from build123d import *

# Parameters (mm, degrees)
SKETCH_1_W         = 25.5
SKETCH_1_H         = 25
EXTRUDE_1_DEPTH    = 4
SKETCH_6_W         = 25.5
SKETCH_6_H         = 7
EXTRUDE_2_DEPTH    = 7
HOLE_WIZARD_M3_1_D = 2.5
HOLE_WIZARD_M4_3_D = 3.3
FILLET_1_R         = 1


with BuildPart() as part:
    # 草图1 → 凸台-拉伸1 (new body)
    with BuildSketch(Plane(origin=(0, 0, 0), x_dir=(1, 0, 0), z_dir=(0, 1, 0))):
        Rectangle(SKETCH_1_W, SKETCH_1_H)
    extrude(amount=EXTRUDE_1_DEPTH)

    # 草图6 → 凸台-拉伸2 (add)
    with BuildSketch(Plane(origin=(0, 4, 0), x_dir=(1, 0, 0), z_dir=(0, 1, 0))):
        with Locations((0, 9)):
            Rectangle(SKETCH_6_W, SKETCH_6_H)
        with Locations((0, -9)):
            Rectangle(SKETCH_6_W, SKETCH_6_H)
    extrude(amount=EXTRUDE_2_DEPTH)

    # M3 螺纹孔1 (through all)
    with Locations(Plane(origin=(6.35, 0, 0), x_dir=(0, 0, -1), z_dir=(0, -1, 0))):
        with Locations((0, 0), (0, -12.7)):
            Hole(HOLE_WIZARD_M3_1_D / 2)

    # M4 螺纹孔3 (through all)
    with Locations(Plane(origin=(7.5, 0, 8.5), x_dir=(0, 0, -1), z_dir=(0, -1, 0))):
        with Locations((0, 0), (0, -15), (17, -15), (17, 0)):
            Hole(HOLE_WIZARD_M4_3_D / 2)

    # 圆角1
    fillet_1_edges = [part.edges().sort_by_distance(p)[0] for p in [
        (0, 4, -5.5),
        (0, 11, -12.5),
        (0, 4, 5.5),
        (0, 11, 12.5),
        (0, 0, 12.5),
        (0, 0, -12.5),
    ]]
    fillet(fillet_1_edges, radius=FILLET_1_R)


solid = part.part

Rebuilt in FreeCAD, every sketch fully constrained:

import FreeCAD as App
import Part
import Sketcher
Q = App.Units.Quantity


def edges_at(feature, points):
    """Names of the edges that pass closest to the given points."""
    edges = feature.Shape.Edges
    near = lambda p: min(range(len(edges)), key=lambda i: edges[i].distToShape(Part.Vertex(*p))[0])
    return sorted({f"Edge{near(p) + 1}" for p in points})

doc = App.newDocument("Part")
body = doc.addObject("PartDesign::Body", "Body")

# Sketch on XZ plane
sketch1 = doc.addObject("Sketcher::SketchObject", "Sketch")
body.addObject(sketch1)
sketch1.AttachmentSupport = (doc.XZ_Plane, [""])
sketch1.MapMode = "FlatFace"
sketch1.addGeometry([
    Part.LineSegment(App.Vector(-13, -12, 0), App.Vector(-13, 12, 0)),
    Part.LineSegment(App.Vector(-13, 12, 0), App.Vector(13, 12, 0)),
    Part.LineSegment(App.Vector(13, 12, 0), App.Vector(13, -12, 0)),
    Part.LineSegment(App.Vector(13, -12, 0), App.Vector(-13, -12, 0)),
], False)
sketch1.addConstraint([
    Sketcher.Constraint("Coincident", 0, 2, 1, 1),
    Sketcher.Constraint("Coincident", 1, 2, 2, 1),
    Sketcher.Constraint("Coincident", 2, 2, 3, 1),
    Sketcher.Constraint("Coincident", 3, 2, 0, 1),
    Sketcher.Constraint("Vertical", 0),
    Sketcher.Constraint("Horizontal", 1),
    Sketcher.Constraint("Vertical", 2),
    Sketcher.Constraint("Horizontal", 3),
    Sketcher.Constraint("Symmetric", 0, 2, 2, 2, -1, 1),
    Sketcher.Constraint("DistanceY", 0, 1, 0, 2, Q("25 mm")),
    Sketcher.Constraint("DistanceX", 1, 1, 1, 2, Q("25.5 mm")),
])
pad1 = doc.addObject("PartDesign::Pad", "Pad")
body.addObject(pad1)
pad1.Profile = sketch1
pad1.Length = 4
pad1.Reversed = True

# Sketch on XZ plane
sketch2 = doc.addObject("Sketcher::SketchObject", "Sketch001")
body.addObject(sketch2)
sketch2.AttachmentSupport = (doc.XZ_Plane, [""])
sketch2.MapMode = "FlatFace"
sketch2.AttachmentOffset = App.Placement(App.Vector(0, 0, -4), App.Rotation())
sketch2.addGeometry([
    Part.LineSegment(App.Vector(-13, -12, 0), App.Vector(-13, -6, 0)),  # 0
    Part.LineSegment(App.Vector(-13, -6, 0), App.Vector(13, -6, 0)),  # 1
    Part.LineSegment(App.Vector(13, -6, 0), App.Vector(13, -12, 0)),  # 2
    Part.LineSegment(App.Vector(13, -12, 0), App.Vector(-13, -12, 0)),  # 3
    Part.LineSegment(App.Vector(-13, 6, 0), App.Vector(-13, 12, 0)),  # 4
    Part.LineSegment(App.Vector(-13, 12, 0), App.Vector(13, 12, 0)),  # 5
    Part.LineSegment(App.Vector(13, 12, 0), App.Vector(13, 6, 0)),  # 6
    Part.LineSegment(App.Vector(13, 6, 0), App.Vector(-13, 6, 0)),  # 7
], False)
sketch2.addConstraint([
    Sketcher.Constraint("Coincident", 0, 2, 1, 1),
    Sketcher.Constraint("Coincident", 1, 2, 2, 1),
    Sketcher.Constraint("Coincident", 2, 2, 3, 1),
    Sketcher.Constraint("Coincident", 3, 2, 0, 1),
    Sketcher.Constraint("Coincident", 4, 2, 5, 1),
    Sketcher.Constraint("Coincident", 5, 2, 6, 1),
    Sketcher.Constraint("Coincident", 6, 2, 7, 1),
    Sketcher.Constraint("Coincident", 7, 2, 4, 1),
    Sketcher.Constraint("Vertical", 0),
    Sketcher.Constraint("Horizontal", 1),
    Sketcher.Constraint("Vertical", 2),
    Sketcher.Constraint("Horizontal", 3),
    Sketcher.Constraint("Vertical", 4),
    Sketcher.Constraint("Horizontal", 5),
    Sketcher.Constraint("Vertical", 6),
    Sketcher.Constraint("Horizontal", 7),
    Sketcher.Constraint("Symmetric", 2, 2, 4, 2, -1, 1),
    Sketcher.Constraint("Symmetric", 0, 2, 6, 2, -1, 1),
    Sketcher.Constraint("Vertical", 3, 2, 4, 2),
    Sketcher.Constraint("DistanceY", 0, 1, 0, 2, Q("7 mm")),
    Sketcher.Constraint("DistanceX", 1, 1, 1, 2, Q("25.5 mm")),
    Sketcher.Constraint("DistanceY", 0, 2, 4, 2, Q("18 mm")),
])
pad2 = doc.addObject("PartDesign::Pad", "Pad001")
body.addObject(pad2)
pad2.Profile = sketch2
pad2.Length = 7
pad2.Reversed = True

# Sketch on XZ plane
sketch3 = doc.addObject("Sketcher::SketchObject", "Sketch002")
body.addObject(sketch3)
sketch3.AttachmentSupport = (doc.XZ_Plane, [""])
sketch3.MapMode = "FlatFace"
sketch3.addGeometry([
    Part.Circle(App.Vector(6.3, 0, 0), App.Vector(0, 0, 1), 1.2),
    Part.Circle(App.Vector(-6.3, 0, 0), App.Vector(0, 0, 1), 1.2),
], False)
sketch3.addConstraint([
    Sketcher.Constraint("Equal", 0, 1),
    Sketcher.Constraint("Symmetric", 0, 3, 1, 3, -1, 1),
    Sketcher.Constraint("PointOnObject", 0, 3, -1),
    Sketcher.Constraint("Diameter", 0, Q("2.5 mm")),
    Sketcher.Constraint("DistanceX", 1, 3, 0, 3, Q("12.7 mm")),
])
doc.recompute()
hole = doc.addObject("PartDesign::Hole", "Hole")
body.addObject(hole)
hole.Profile = sketch3
hole.ThreadType = "None"
hole.Diameter = 2.5
hole.DepthType = "ThroughAll"

# Sketch on XZ plane
sketch4 = doc.addObject("Sketcher::SketchObject", "Sketch003")
body.addObject(sketch4)
sketch4.AttachmentSupport = (doc.XZ_Plane, [""])
sketch4.MapMode = "FlatFace"
sketch4.addGeometry([
    Part.Circle(App.Vector(7.5, 8.5, 0), App.Vector(0, 0, 1), 1.6),
    Part.Circle(App.Vector(-7.5, 8.5, 0), App.Vector(0, 0, 1), 1.6),
    Part.Circle(App.Vector(-7.5, -8.5, 0), App.Vector(0, 0, 1), 1.6),
    Part.Circle(App.Vector(7.5, -8.5, 0), App.Vector(0, 0, 1), 1.6),
], False)
sketch4.addConstraint([
    Sketcher.Constraint("Equal", 0, 1),
    Sketcher.Constraint("Equal", 1, 2),
    Sketcher.Constraint("Equal", 2, 3),
    Sketcher.Constraint("Symmetric", 0, 3, 2, 3, -1, 1),
    Sketcher.Constraint("Symmetric", 1, 3, 3, 3, -1, 1),
    Sketcher.Constraint("Symmetric", 0, 3, 1, 3, -2),
    Sketcher.Constraint("Diameter", 0, Q("3.3 mm")),
    Sketcher.Constraint("DistanceX", 1, 3, 0, 3, Q("15 mm")),
    Sketcher.Constraint("DistanceY", 2, 3, 1, 3, Q("17 mm")),
])
doc.recompute()
hole2 = doc.addObject("PartDesign::Hole", "Hole001")
body.addObject(hole2)
hole2.Profile = sketch4
hole2.ThreadType = "None"
hole2.Diameter = 3.3
hole2.DepthType = "ThroughAll"
doc.recompute()

fillet = doc.addObject("PartDesign::Fillet", "Fillet")
body.addObject(fillet)
fillet.Base = (hole2, edges_at(hole2, [
    (0, 4, -5.5),
    (0, 11, -12.5),
    (0, 4, 5.5),
    (0, 11, 12.5),
    (0, 0, 12.5),
    (0, 0, -12.5),
]))
fillet.Radius = 1

doc.recompute()
